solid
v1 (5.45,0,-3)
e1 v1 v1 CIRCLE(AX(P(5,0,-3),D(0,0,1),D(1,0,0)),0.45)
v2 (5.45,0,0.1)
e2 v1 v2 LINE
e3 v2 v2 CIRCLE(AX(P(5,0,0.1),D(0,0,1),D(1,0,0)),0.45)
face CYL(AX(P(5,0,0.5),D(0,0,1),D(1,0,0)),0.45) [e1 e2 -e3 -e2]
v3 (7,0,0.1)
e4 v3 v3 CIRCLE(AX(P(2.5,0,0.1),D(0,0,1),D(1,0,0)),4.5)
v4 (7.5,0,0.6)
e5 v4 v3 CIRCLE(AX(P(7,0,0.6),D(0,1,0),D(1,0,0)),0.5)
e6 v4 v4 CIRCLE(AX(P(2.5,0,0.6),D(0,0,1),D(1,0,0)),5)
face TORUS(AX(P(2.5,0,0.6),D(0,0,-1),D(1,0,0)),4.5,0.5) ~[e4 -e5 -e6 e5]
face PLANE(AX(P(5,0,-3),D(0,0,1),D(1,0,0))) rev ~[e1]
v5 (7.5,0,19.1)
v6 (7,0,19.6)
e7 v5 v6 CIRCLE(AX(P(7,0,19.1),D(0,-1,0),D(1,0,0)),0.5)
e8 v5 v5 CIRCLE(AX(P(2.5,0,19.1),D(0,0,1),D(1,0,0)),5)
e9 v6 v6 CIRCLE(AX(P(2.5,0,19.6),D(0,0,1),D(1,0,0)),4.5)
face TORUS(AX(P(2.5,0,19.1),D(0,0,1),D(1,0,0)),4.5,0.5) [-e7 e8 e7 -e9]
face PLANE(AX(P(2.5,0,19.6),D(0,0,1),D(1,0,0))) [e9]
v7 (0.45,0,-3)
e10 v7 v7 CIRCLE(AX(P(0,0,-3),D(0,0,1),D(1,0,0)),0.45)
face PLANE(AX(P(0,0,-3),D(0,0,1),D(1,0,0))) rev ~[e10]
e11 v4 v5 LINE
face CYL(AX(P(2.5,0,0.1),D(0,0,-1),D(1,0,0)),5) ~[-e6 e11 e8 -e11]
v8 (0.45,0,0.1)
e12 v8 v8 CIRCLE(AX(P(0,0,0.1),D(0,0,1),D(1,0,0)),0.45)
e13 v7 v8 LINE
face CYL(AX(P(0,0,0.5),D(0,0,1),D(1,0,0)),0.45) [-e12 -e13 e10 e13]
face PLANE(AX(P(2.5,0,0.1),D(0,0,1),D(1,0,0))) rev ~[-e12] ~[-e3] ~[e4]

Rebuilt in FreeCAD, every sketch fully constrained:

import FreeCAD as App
import Part
import Sketcher
from FreeCAD import Vector


def edges_at(feature, points):
    """Names of the edges that pass closest to the given points."""
    edges = feature.Shape.Edges
    near = lambda p: min(range(len(edges)), key=lambda i: edges[i].distToShape(Part.Vertex(*p))[0])
    return sorted({f"Edge{near(p) + 1}" for p in points})

doc = App.newDocument("Part")
body = doc.addObject("PartDesign::Body", "Body")
body.AllowCompound = True

# Sketch on XY plane
sketch1 = body.newObject("Sketcher::SketchObject", "Sketch")
sketch1.AttachmentSupport = (doc.getObject("XY_Plane"), [""])
sketch1.MapMode = "FlatFace"
sketch1.AttachmentOffset = App.Placement(Vector(0, 0, 0.5), App.Rotation())
sketch1.addGeometry(Part.Circle(Vector(0, 0, 0), Vector(0, 0, 1), 0.45), False)
sketch1.addGeometry(Part.Circle(Vector(5, 0, 0), Vector(0, 0, 1), 0.45), False)
sketch1.addConstraint(Sketcher.Constraint("Coincident", 0, 3, -1, 1))
sketch1.addConstraint(Sketcher.Constraint("Equal", 0, 1))
sketch1.addConstraint(Sketcher.Constraint("PointOnObject", 1, 3, -1))
sketch1.addConstraint(Sketcher.Constraint("Diameter", 0, 0.9))
sketch1.addConstraint(Sketcher.Constraint("DistanceX", -1, 1, 1, 3, 5.0))
pad1 = body.newObject("PartDesign::Pad", "Pad")
pad1.Profile = sketch1
pad1.Type = "TwoLengths"
pad1.Length = 9.75
pad1.Length2 = 3.5
body2 = doc.addObject("PartDesign::Body", "Body001")

# Sketch on XY plane
sketch2 = body2.newObject("Sketcher::SketchObject", "Sketch001")
sketch2.AttachmentSupport = (doc.getObject("XY_Plane001"), [""])
sketch2.MapMode = "FlatFace"
sketch2.AttachmentOffset = App.Placement(Vector(0, 0, 0.1), App.Rotation())
sketch2.addGeometry(Part.Circle(Vector(2, 0, 0), Vector(0, 0, 1), 5), False)
sketch2.addConstraint(Sketcher.Constraint("PointOnObject", 0, 3, -1))
sketch2.addConstraint(Sketcher.Constraint("Diameter", 0, 10.0))
sketch2.addConstraint(Sketcher.Constraint("DistanceX", -1, 1, 0, 3, 2.5))
pad2 = body2.newObject("PartDesign::Pad", "Pad001")
pad2.Profile = sketch2
pad2.Length = 19.5
doc.recompute()

fillet = body2.newObject("PartDesign::Fillet", "Fillet")
fillet.Base = (pad2, edges_at(pad2, [(-2.5, 0, 0.1), (-2.5, 0, 19.6)]))
fillet.Radius = 0.5
doc.recompute()

boolean = body2.newObject("PartDesign::Boolean", "Boolean")
boolean.Type = "Fuse"
boolean.addObjects([body])

doc.recompute()
